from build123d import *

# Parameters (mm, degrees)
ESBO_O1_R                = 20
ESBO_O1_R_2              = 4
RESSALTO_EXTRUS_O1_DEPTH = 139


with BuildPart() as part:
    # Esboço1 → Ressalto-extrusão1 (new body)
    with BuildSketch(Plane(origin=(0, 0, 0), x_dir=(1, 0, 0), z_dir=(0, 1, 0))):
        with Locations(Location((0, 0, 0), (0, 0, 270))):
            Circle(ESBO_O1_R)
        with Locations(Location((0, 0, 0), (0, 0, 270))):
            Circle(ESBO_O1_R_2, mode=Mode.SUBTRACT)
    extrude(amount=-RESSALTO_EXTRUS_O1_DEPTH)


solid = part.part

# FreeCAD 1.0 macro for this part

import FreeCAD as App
import Part
import Sketcher

V = App.Vector

doc = App.newDocument("Part")
params = doc.addObject("Spreadsheet::Sheet", "Params")
for row, (alias, value) in enumerate([
    ("sketch1_diameter", "40 mm"),
    ("sketch1_diameter2", "8 mm"),
    ("pad1_length", "139 mm"),
], start=1):
    params.set(f"A{row}", alias)
    params.set(f"B{row}", "=" + value)
    params.setAlias(f"B{row}", alias)

body = doc.addObject("PartDesign::Body", "Body")

# Sketch on XZ plane
sketch1 = doc.addObject("Sketcher::SketchObject", "Sketch")
body.addObject(sketch1)
sketch1.AttachmentSupport = (doc.XZ_Plane, [""])
sketch1.MapMode = "FlatFace"
sketch1.addGeometry([
    Part.Circle(V(0, 0, 0), V(0, 0, 1), 20),
    Part.Circle(V(0, 0, 0), V(0, 0, 1), 4),
], False)
sketch1.addConstraint([
    Sketcher.Constraint("Coincident", 0, 3, -1, 1),
    Sketcher.Constraint("Coincident", 1, 3, -1, 1),
    Sketcher.Constraint("Diameter", 0, 40.0),
    Sketcher.Constraint("Diameter", 1, 8.0),
])
sketch1.setExpression("Constraints[2]", "Params.sketch1_diameter")
sketch1.setExpression("Constraints[3]", "Params.sketch1_diameter2")
pad1 = doc.addObject("PartDesign::Pad", "Pad")
body.addObject(pad1)
pad1.Profile = sketch1
pad1.setExpression("Length", "Params.pad1_length")

doc.recompute()
